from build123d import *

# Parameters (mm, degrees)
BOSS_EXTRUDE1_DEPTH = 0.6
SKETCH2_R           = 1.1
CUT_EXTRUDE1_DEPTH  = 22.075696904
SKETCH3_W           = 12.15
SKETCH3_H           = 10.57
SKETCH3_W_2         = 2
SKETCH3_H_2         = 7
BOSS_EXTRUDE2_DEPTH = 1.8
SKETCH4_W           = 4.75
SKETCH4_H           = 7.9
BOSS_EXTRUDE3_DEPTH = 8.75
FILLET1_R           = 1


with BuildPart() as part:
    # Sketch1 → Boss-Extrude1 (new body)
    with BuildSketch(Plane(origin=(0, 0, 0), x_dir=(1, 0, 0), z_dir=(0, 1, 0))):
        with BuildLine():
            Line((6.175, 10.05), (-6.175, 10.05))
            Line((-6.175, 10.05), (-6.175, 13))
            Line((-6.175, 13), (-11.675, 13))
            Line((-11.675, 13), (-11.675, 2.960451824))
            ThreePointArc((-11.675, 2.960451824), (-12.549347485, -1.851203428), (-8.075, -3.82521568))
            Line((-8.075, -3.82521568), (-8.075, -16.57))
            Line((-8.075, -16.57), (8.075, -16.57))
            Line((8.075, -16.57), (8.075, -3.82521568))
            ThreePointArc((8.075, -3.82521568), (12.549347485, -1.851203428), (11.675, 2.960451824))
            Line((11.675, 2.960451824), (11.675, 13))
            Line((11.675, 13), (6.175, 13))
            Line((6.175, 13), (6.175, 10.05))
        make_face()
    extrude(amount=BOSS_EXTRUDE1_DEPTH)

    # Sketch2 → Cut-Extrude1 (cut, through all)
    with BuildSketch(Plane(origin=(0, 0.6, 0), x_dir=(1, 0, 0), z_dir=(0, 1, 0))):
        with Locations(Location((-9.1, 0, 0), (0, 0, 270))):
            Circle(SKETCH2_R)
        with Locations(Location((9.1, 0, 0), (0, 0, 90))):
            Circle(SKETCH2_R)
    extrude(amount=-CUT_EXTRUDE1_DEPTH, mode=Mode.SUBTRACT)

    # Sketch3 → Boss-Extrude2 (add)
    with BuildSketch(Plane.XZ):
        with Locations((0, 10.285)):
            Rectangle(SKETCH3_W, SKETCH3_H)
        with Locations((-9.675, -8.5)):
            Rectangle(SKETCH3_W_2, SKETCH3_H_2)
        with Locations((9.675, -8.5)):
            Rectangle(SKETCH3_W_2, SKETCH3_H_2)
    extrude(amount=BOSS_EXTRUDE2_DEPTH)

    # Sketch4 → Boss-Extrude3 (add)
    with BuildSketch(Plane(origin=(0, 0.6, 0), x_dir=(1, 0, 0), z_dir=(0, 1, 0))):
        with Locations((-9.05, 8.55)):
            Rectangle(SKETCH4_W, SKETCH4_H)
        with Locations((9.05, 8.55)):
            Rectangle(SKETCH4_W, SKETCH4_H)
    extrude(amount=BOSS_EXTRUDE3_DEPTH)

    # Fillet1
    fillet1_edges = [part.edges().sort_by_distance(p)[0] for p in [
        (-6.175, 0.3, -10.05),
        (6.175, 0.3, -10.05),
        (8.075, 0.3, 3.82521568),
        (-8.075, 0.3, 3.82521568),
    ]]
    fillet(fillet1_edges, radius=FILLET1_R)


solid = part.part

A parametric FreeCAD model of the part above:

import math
import FreeCAD as App
import Part
import Sketcher

V = App.Vector


def edges_at(feature, points):
    """Names of the edges that pass closest to the given points."""
    edges = feature.Shape.Edges
    near = lambda p: min(range(len(edges)), key=lambda i: edges[i].distToShape(Part.Vertex(*p))[0])
    return sorted({f"Edge{near(p) + 1}" for p in points})


def add_polygon(sketch, points):
    """Adds a closed chain of lines whose ends are joined by coincident constraints."""
    first, n = sketch.GeometryCount, len(points)
    for a, b in zip(points, points[1:] + points[:1]):
        sketch.addGeometry(Part.LineSegment(App.Vector(*a, 0), App.Vector(*b, 0)), False)
    for i in range(n):
        sketch.addConstraint(Sketcher.Constraint("Coincident", first + i, 2, first + (i + 1) % n, 1))

doc = App.newDocument("Part")
body = doc.addObject("PartDesign::Body", "Body")

sketch1 = doc.addObject("Sketcher::SketchObject", "Sketch")
body.addObject(sketch1)
sketch1.AttachmentSupport = (doc.XZ_Plane, [""])
sketch1.MapMode = "FlatFace"
sketch1.addGeometry([
    Part.LineSegment(V(6.2, -10.1, 0), V(-6.2, -10.1, 0)),
    Part.LineSegment(V(-6.2, -10.1, 0), V(-6.2, -13, 0)),
    Part.LineSegment(V(-6.2, -13, 0), V(-11.7, -13, 0)),
    Part.LineSegment(V(-11.7, -13, 0), V(-11.7, -3, 0)),
    Part.ArcOfCircle(Part.Circle(V(-9.1, 0, 0), V(0, 0, 1), 4), math.radians(76), math.radians(229)),
    Part.LineSegment(V(-8.1, 3.8, 0), V(-8.1, 16.6, 0)),
    Part.LineSegment(V(-8.1, 16.6, 0), V(8.1, 16.6, 0)),
    Part.LineSegment(V(8.1, 16.6, 0), V(8.1, 3.8, 0)),
    Part.ArcOfCircle(Part.Circle(V(9.1, 0, 0), V(0, 0, 1), 4), math.radians(-49), math.radians(104)),
    Part.LineSegment(V(11.7, -3, 0), V(11.7, -13, 0)),
    Part.LineSegment(V(11.7, -13, 0), V(6.2, -13, 0)),
    Part.LineSegment(V(6.2, -13, 0), V(6.2, -10.1, 0)),
], False)
sketch1.addConstraint([
    Sketcher.Constraint("Coincident", 0, 2, 1, 1),
    Sketcher.Constraint("Coincident", 1, 2, 2, 1),
    Sketcher.Constraint("Coincident", 2, 2, 3, 1),
    Sketcher.Constraint("Coincident", 3, 2, 4, 2),
    Sketcher.Constraint("Coincident", 4, 1, 5, 1),
    Sketcher.Constraint("Coincident", 5, 2, 6, 1),
    Sketcher.Constraint("Coincident", 6, 2, 7, 1),
    Sketcher.Constraint("Coincident", 7, 2, 8, 2),
    Sketcher.Constraint("Coincident", 8, 1, 9, 1),
    Sketcher.Constraint("Coincident", 9, 2, 10, 1),
    Sketcher.Constraint("Coincident", 10, 2, 11, 1),
    Sketcher.Constraint("Coincident", 11, 2, 0, 1),
    Sketcher.Constraint("Horizontal", 0),
    Sketcher.Constraint("Vertical", 1),
    Sketcher.Constraint("Horizontal", 2),
    Sketcher.Constraint("Vertical", 3),
    Sketcher.Constraint("Vertical", 5),
    Sketcher.Constraint("Horizontal", 6),
    Sketcher.Constraint("Vertical", 7),
    Sketcher.Constraint("Vertical", 9),
    Sketcher.Constraint("Horizontal", 10),
    Sketcher.Constraint("Vertical", 11),
    Sketcher.Constraint("Equal", 4, 8),
    Sketcher.Constraint("Symmetric", 4, 3, 8, 3, -1, 1),
    Sketcher.Constraint("Symmetric", 4, 1, 7, 2, -2),
    Sketcher.Constraint("Symmetric", 2, 2, 9, 2, -2),
    Sketcher.Constraint("Equal", 2, 10),
    Sketcher.Constraint("Radius", 4, 3.95),
    Sketcher.Constraint("DistanceX", 2, 2, 2, 1, 5.5),
    Sketcher.Constraint("DistanceY", 1, 2, -1, 1, 13.0),
    Sketcher.Constraint("DistanceX", 0, 2, 0, 1, 12.35),
    Sketcher.Constraint("DistanceX", 6, 1, 6, 2, 16.15),
    Sketcher.Constraint("DistanceY", 1, 2, 1, 1, 2.95),
    Sketcher.Constraint("DistanceX", 4, 3, -1, 1, 9.06),
    Sketcher.Constraint("DistanceY", -1, 1, 5, 2, 16.57),
])
pad1 = doc.addObject("PartDesign::Pad", "Pad")
body.addObject(pad1)
pad1.Profile = sketch1
pad1.Length = 0.6
pad1.Reversed = True

sketch2 = doc.addObject("Sketcher::SketchObject", "Sketch001")
body.addObject(sketch2)
sketch2.AttachmentSupport = (doc.XZ_Plane, [""])
sketch2.MapMode = "FlatFace"
sketch2.AttachmentOffset = App.Placement(V(0, 0, -0.6), App.Rotation())
sketch2.addGeometry([
    Part.Circle(V(-9.1, 0, 0), V(0, 0, 1), 1.1),
    Part.Circle(V(9.1, 0, 0), V(0, 0, 1), 1.1),
], False)
sketch2.addConstraint([
    Sketcher.Constraint("Equal", 0, 1),
    Sketcher.Constraint("Symmetric", 0, 3, 1, 3, -1, 1),
    Sketcher.Constraint("PointOnObject", 0, 3, -1),
    Sketcher.Constraint("Diameter", 0, 2.2),
    Sketcher.Constraint("DistanceX", 0, 3, -1, 1, 9.1),
])
pocket1 = doc.addObject("PartDesign::Pocket", "Pocket")
body.addObject(pocket1)
pocket1.Profile = sketch2
pocket1.Type = "ThroughAll"
pocket1.Reversed = True

sketch3 = doc.addObject("Sketcher::SketchObject", "Sketch002")
body.addObject(sketch3)
sketch3.AttachmentSupport = (doc.XZ_Plane, [""])
sketch3.MapMode = "FlatFace"
add_polygon(sketch3, [(-6.1, 15.6), (-6.1, 5), (6.1, 5), (6.1, 15.6)])
add_polygon(sketch3, [(-10.7, -5), (-10.7, -12), (-8.7, -12), (-8.7, -5)])
add_polygon(sketch3, [(8.7, -5), (8.7, -12), (10.7, -12), (10.7, -5)])
sketch3.addConstraint([
    Sketcher.Constraint("Vertical", 0),
    Sketcher.Constraint("Horizontal", 1),
    Sketcher.Constraint("Vertical", 2),
    Sketcher.Constraint("Horizontal", 3),
    Sketcher.Constraint("Vertical", 4),
    Sketcher.Constraint("Horizontal", 5),
    Sketcher.Constraint("Vertical", 6),
    Sketcher.Constraint("Horizontal", 7),
    Sketcher.Constraint("Vertical", 8),
    Sketcher.Constraint("Horizontal", 9),
    Sketcher.Constraint("Vertical", 10),
    Sketcher.Constraint("Horizontal", 11),
    Sketcher.Constraint("Symmetric", 5, 2, 8, 2, -2),
    Sketcher.Constraint("Symmetric", 7, 2, 10, 2, -2),
    Sketcher.Constraint("DistanceX", 5, 1, 5, 2, 2.0),
    Sketcher.Constraint("DistanceY", 4, 2, 4, 1, 7.0),
    Sketcher.Constraint("DistanceY", -1, 1, 0, 2, 5.0),
    Sketcher.Constraint("DistanceY", 4, 2, -1, 1, 12.0),
    Sketcher.Constraint("DistanceX", 1, 1, 1, 2, 12.15),
    Sketcher.Constraint("DistanceY", 0, 2, 0, 1, 10.57),
    Sketcher.Constraint("DistanceX", 4, 2, 0, 2, 4.6),
    Sketcher.Constraint("DistanceX", 1, 2, 8, 2, 2.6),
])
pad2 = doc.addObject("PartDesign::Pad", "Pad001")
body.addObject(pad2)
pad2.Profile = sketch3
pad2.Length = 1.8

sketch4 = doc.addObject("Sketcher::SketchObject", "Sketch003")
body.addObject(sketch4)
sketch4.AttachmentSupport = (doc.XZ_Plane, [""])
sketch4.MapMode = "FlatFace"
sketch4.AttachmentOffset = App.Placement(V(0, 0, -0.6), App.Rotation())
add_polygon(sketch4, [(-11.4, -12.5), (-11.4, -4.6), (-6.7, -4.6), (-6.7, -12.5)])
add_polygon(sketch4, [(6.7, -12.5), (6.7, -4.6), (11.4, -4.6), (11.4, -12.5)])
sketch4.addConstraint([
    Sketcher.Constraint("Vertical", 0),
    Sketcher.Constraint("Horizontal", 1),
    Sketcher.Constraint("Vertical", 2),
    Sketcher.Constraint("Horizontal", 3),
    Sketcher.Constraint("Vertical", 4),
    Sketcher.Constraint("Horizontal", 5),
    Sketcher.Constraint("Vertical", 6),
    Sketcher.Constraint("Horizontal", 7),
    Sketcher.Constraint("Symmetric", 1, 2, 4, 2, -2),
    Sketcher.Constraint("Symmetric", 3, 2, 6, 2, -2),
    Sketcher.Constraint("DistanceY", 0, 1, 0, 2, 7.9),
    Sketcher.Constraint("DistanceX", 1, 1, 1, 2, 4.75),
    Sketcher.Constraint("DistanceY", 0, 2, -1, 1, 4.6),
    Sketcher.Constraint("DistanceX", 0, 2, 4, 2, 18.1),
])
pad3 = doc.addObject("PartDesign::Pad", "Pad002")
body.addObject(pad3)
pad3.Profile = sketch4
pad3.Length = 8.75
pad3.Reversed = True
doc.recompute()

fillet = doc.addObject("PartDesign::Fillet", "Fillet")
body.addObject(fillet)
fillet.Base = (pad3, edges_at(pad3, [
    (-6.175, 0.3, -10.05),
    (6.175, 0.3, -10.05),
    (8.075, 0.3, 3.825),
    (-8.075, 0.3, 3.825),
]))
fillet.Radius = 1

doc.recompute()
